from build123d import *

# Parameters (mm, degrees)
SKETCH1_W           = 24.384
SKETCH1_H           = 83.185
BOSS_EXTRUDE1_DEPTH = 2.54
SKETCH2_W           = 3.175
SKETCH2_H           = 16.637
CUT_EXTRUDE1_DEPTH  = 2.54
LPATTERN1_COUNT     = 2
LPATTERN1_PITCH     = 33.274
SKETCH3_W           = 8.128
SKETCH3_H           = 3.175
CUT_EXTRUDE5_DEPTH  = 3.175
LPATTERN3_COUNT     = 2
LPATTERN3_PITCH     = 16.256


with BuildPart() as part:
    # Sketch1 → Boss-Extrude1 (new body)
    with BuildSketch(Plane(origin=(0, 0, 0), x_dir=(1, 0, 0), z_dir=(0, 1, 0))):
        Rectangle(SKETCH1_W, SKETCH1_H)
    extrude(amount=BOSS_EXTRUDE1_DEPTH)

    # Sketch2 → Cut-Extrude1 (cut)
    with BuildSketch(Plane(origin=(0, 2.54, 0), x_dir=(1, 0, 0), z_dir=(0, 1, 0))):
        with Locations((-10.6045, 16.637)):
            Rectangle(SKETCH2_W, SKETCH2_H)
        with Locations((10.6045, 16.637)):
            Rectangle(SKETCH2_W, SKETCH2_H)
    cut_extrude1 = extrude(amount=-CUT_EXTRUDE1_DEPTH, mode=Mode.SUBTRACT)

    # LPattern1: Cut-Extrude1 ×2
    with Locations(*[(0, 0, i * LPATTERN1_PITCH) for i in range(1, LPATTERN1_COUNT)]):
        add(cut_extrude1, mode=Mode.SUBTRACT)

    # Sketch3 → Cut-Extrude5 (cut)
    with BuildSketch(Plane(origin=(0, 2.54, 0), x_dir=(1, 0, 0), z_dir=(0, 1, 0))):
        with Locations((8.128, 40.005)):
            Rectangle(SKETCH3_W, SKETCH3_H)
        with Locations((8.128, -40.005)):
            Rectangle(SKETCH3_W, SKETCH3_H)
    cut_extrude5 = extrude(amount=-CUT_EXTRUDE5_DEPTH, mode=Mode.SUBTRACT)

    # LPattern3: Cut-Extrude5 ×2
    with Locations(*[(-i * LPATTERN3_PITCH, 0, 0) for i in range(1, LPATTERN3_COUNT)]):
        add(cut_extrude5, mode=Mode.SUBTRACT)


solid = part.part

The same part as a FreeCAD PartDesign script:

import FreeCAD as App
import Part
import Sketcher
from FreeCAD import Vector
Q = App.Units.Quantity

doc = App.newDocument("Part")
body = doc.addObject("PartDesign::Body", "Body")

# Sketch on XZ plane
sketch1 = body.newObject("Sketcher::SketchObject", "Sketch")
sketch1.AttachmentSupport = (doc.getObject("XZ_Plane"), [""])
sketch1.MapMode = "FlatFace"
sketch1.addGeometry(Part.LineSegment(Vector(-12.192, -41.5925, 0), Vector(-12.192, 41.5925, 0)), False)
sketch1.addGeometry(Part.LineSegment(Vector(-12.192, 41.5925, 0), Vector(12.192, 41.5925, 0)), False)
sketch1.addGeometry(Part.LineSegment(Vector(12.192, 41.5925, 0), Vector(12.192, -41.5925, 0)), False)
sketch1.addGeometry(Part.LineSegment(Vector(12.192, -41.5925, 0), Vector(-12.192, -41.5925, 0)), False)
sketch1.addConstraint(Sketcher.Constraint("Coincident", 0, 2, 1, 1))
sketch1.addConstraint(Sketcher.Constraint("Coincident", 1, 2, 2, 1))
sketch1.addConstraint(Sketcher.Constraint("Coincident", 2, 2, 3, 1))
sketch1.addConstraint(Sketcher.Constraint("Coincident", 3, 2, 0, 1))
sketch1.addConstraint(Sketcher.Constraint("Vertical", 0))
sketch1.addConstraint(Sketcher.Constraint("Horizontal", 1))
sketch1.addConstraint(Sketcher.Constraint("Vertical", 2))
sketch1.addConstraint(Sketcher.Constraint("Horizontal", 3))
sketch1.addConstraint(Sketcher.Constraint("Symmetric", 0, 2, 2, 2, -1, 1))
sketch1.addConstraint(Sketcher.Constraint("DistanceX", 1, 1, 1, 2, Q("0.96 in")))
sketch1.addConstraint(Sketcher.Constraint("DistanceY", 0, 1, 0, 2, Q("3.275 in")))
pad1 = body.newObject("PartDesign::Pad", "Pad")
pad1.Profile = sketch1
pad1.Length = Q("0.1 in")
pad1.Reversed = True

# Sketch on XZ plane
sketch2 = body.newObject("Sketcher::SketchObject", "Sketch001")
sketch2.AttachmentSupport = (doc.getObject("XZ_Plane"), [""])
sketch2.MapMode = "FlatFace"
sketch2.AttachmentOffset = App.Placement(Vector(0, 0, -0.1 * 25.4), App.Rotation())
sketch2.addGeometry(Part.LineSegment(Vector(-12.192, -24.9555, 0), Vector(-12.192, -8.3185, 0)), False)
sketch2.addGeometry(Part.LineSegment(Vector(-12.192, -8.3185, 0), Vector(-9.017, -8.3185, 0)), False)
sketch2.addGeometry(Part.LineSegment(Vector(-9.017, -8.3185, 0), Vector(-9.017, -24.9555, 0)), False)
sketch2.addGeometry(Part.LineSegment(Vector(-9.017, -24.9555, 0), Vector(-12.192, -24.9555, 0)), False)
sketch2.addGeometry(Part.LineSegment(Vector(9.017, -24.9555, 0), Vector(9.017, -8.3185, 0)), False)
sketch2.addGeometry(Part.LineSegment(Vector(9.017, -8.3185, 0), Vector(12.192, -8.3185, 0)), False)
sketch2.addGeometry(Part.LineSegment(Vector(12.192, -8.3185, 0), Vector(12.192, -24.9555, 0)), False)
sketch2.addGeometry(Part.LineSegment(Vector(12.192, -24.9555, 0), Vector(9.017, -24.9555, 0)), False)
sketch2.addConstraint(Sketcher.Constraint("Coincident", 0, 2, 1, 1))
sketch2.addConstraint(Sketcher.Constraint("Coincident", 1, 2, 2, 1))
sketch2.addConstraint(Sketcher.Constraint("Coincident", 2, 2, 3, 1))
sketch2.addConstraint(Sketcher.Constraint("Coincident", 3, 2, 0, 1))
sketch2.addConstraint(Sketcher.Constraint("Coincident", 4, 2, 5, 1))
sketch2.addConstraint(Sketcher.Constraint("Coincident", 5, 2, 6, 1))
sketch2.addConstraint(Sketcher.Constraint("Coincident", 6, 2, 7, 1))
sketch2.addConstraint(Sketcher.Constraint("Coincident", 7, 2, 4, 1))
sketch2.addConstraint(Sketcher.Constraint("Vertical", 0))
sketch2.addConstraint(Sketcher.Constraint("Horizontal", 1))
sketch2.addConstraint(Sketcher.Constraint("Vertical", 2))
sketch2.addConstraint(Sketcher.Constraint("Horizontal", 3))
sketch2.addConstraint(Sketcher.Constraint("Vertical", 4))
sketch2.addConstraint(Sketcher.Constraint("Horizontal", 5))
sketch2.addConstraint(Sketcher.Constraint("Vertical", 6))
sketch2.addConstraint(Sketcher.Constraint("Horizontal", 7))
sketch2.addConstraint(Sketcher.Constraint("Symmetric", 1, 2, 4, 2, -2))
sketch2.addConstraint(Sketcher.Constraint("Symmetric", 3, 2, 6, 2, -2))
sketch2.addConstraint(Sketcher.Constraint("DistanceX", 1, 1, 1, 2, Q("0.125 in")))
sketch2.addConstraint(Sketcher.Constraint("DistanceY", 0, 1, 0, 2, Q("0.655 in")))
sketch2.addConstraint(Sketcher.Constraint("DistanceX", 0, 2, -1, 1, Q("0.48 in")))
sketch2.addConstraint(Sketcher.Constraint("DistanceY", 0, 2, -1, 1, Q("0.3275 in")))
pocket1 = body.newObject("PartDesign::Pocket", "Pocket")
pocket1.Profile = sketch2
pocket1.Length = Q("0.1 in")
pocket1.Reversed = True
doc.recompute()

linearpattern = body.newObject("PartDesign::LinearPattern", "LinearPattern")
linearpattern.Originals = [pocket1]
linearpattern.Direction = (doc.getObject("Z_Axis"), [""])
linearpattern.Mode = "offset"
linearpattern.Offset = Q("1.31 in")
linearpattern.Occurrences = 2
body.Tip = linearpattern

# Sketch on XZ plane
sketch3 = body.newObject("Sketcher::SketchObject", "Sketch002")
sketch3.AttachmentSupport = (doc.getObject("XZ_Plane"), [""])
sketch3.MapMode = "FlatFace"
sketch3.AttachmentOffset = App.Placement(Vector(0, 0, -0.1 * 25.4), App.Rotation())
sketch3.addGeometry(Part.LineSegment(Vector(4.064, -41.5925, 0), Vector(4.064, -38.4175, 0)), False)
sketch3.addGeometry(Part.LineSegment(Vector(4.064, -38.4175, 0), Vector(12.192, -38.4175, 0)), False)
sketch3.addGeometry(Part.LineSegment(Vector(12.192, -38.4175, 0), Vector(12.192, -41.5925, 0)), False)
sketch3.addGeometry(Part.LineSegment(Vector(12.192, -41.5925, 0), Vector(4.064, -41.5925, 0)), False)
sketch3.addGeometry(Part.LineSegment(Vector(4.064, 38.4175, 0), Vector(4.064, 41.5925, 0)), False)
sketch3.addGeometry(Part.LineSegment(Vector(4.064, 41.5925, 0), Vector(12.192, 41.5925, 0)), False)
sketch3.addGeometry(Part.LineSegment(Vector(12.192, 41.5925, 0), Vector(12.192, 38.4175, 0)), False)
sketch3.addGeometry(Part.LineSegment(Vector(12.192, 38.4175, 0), Vector(4.064, 38.4175, 0)), False)
sketch3.addConstraint(Sketcher.Constraint("Coincident", 0, 2, 1, 1))
sketch3.addConstraint(Sketcher.Constraint("Coincident", 1, 2, 2, 1))
sketch3.addConstraint(Sketcher.Constraint("Coincident", 2, 2, 3, 1))
sketch3.addConstraint(Sketcher.Constraint("Coincident", 3, 2, 0, 1))
sketch3.addConstraint(Sketcher.Constraint("Coincident", 4, 2, 5, 1))
sketch3.addConstraint(Sketcher.Constraint("Coincident", 5, 2, 6, 1))
sketch3.addConstraint(Sketcher.Constraint("Coincident", 6, 2, 7, 1))
sketch3.addConstraint(Sketcher.Constraint("Coincident", 7, 2, 4, 1))
sketch3.addConstraint(Sketcher.Constraint("Vertical", 0))
sketch3.addConstraint(Sketcher.Constraint("Horizontal", 1))
sketch3.addConstraint(Sketcher.Constraint("Vertical", 2))
sketch3.addConstraint(Sketcher.Constraint("Horizontal", 3))
sketch3.addConstraint(Sketcher.Constraint("Vertical", 4))
sketch3.addConstraint(Sketcher.Constraint("Horizontal", 5))
sketch3.addConstraint(Sketcher.Constraint("Vertical", 6))
sketch3.addConstraint(Sketcher.Constraint("Horizontal", 7))
sketch3.addConstraint(Sketcher.Constraint("Symmetric", 3, 2, 4, 2, -1))
sketch3.addConstraint(Sketcher.Constraint("Symmetric", 1, 2, 6, 2, -1))
sketch3.addConstraint(Sketcher.Constraint("DistanceX", 1, 1, 1, 2, Q("0.32 in")))
sketch3.addConstraint(Sketcher.Constraint("DistanceY", 0, 1, 0, 2, Q("0.125 in")))
sketch3.addConstraint(Sketcher.Constraint("DistanceX", -1, 1, 0, 2, Q("0.16 in")))
sketch3.addConstraint(Sketcher.Constraint("DistanceY", 0, 2, 4, 2, Q("3.15 in")))
pocket2 = body.newObject("PartDesign::Pocket", "Pocket001")
pocket2.Profile = sketch3
pocket2.Length = Q("0.125 in")
pocket2.Reversed = True
doc.recompute()

linearpattern2 = body.newObject("PartDesign::LinearPattern", "LinearPattern001")
linearpattern2.Originals = [pocket2]
linearpattern2.Direction = (doc.getObject("X_Axis"), [""])
linearpattern2.Mode = "offset"
linearpattern2.Offset = Q("0.64 in")
linearpattern2.Occurrences = 2
linearpattern2.Reversed = True
body.Tip = linearpattern2

doc.recompute()
